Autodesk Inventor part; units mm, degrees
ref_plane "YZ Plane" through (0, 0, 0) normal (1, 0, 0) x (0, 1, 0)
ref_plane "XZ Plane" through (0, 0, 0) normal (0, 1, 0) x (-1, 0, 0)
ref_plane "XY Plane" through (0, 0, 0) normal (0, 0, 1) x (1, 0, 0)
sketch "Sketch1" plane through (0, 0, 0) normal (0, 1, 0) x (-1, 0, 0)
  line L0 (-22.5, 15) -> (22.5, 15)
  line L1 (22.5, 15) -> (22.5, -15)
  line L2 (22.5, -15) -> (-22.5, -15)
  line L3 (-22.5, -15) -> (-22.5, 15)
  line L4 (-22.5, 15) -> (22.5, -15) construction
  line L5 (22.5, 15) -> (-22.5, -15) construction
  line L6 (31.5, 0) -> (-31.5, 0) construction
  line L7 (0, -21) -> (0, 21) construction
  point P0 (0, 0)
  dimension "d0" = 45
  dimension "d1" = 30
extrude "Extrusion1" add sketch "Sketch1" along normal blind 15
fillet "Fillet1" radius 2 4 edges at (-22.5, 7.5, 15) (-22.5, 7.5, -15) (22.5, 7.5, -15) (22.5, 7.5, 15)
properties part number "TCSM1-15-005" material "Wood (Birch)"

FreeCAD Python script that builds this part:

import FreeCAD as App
import Part
import Sketcher

V = App.Vector


def edges_at(feature, points):
    """Names of the edges that pass closest to the given points."""
    edges = feature.Shape.Edges
    near = lambda p: min(range(len(edges)), key=lambda i: edges[i].distToShape(Part.Vertex(*p))[0])
    return sorted({f"Edge{near(p) + 1}" for p in points})


def add_polygon(sketch, points):
    """Adds a closed chain of lines whose ends are joined by coincident constraints."""
    first, n = sketch.GeometryCount, len(points)
    for a, b in zip(points, points[1:] + points[:1]):
        sketch.addGeometry(Part.LineSegment(App.Vector(*a, 0), App.Vector(*b, 0)), False)
    for i in range(n):
        sketch.addConstraint(Sketcher.Constraint("Coincident", first + i, 2, first + (i + 1) % n, 1))

doc = App.newDocument("Part")
body = doc.addObject("PartDesign::Body", "Body")

sketch1 = body.newObject("Sketcher::SketchObject", "Sketch")
sketch1.AttachmentSupport = (doc.getObject("XZ_Plane"), [""])
sketch1.MapMode = "FlatFace"
add_polygon(sketch1, [(-22, 15), (22, 15), (22, -15), (-22, -15)])
sketch1.addConstraint([
    Sketcher.Constraint("Horizontal", 0),
    Sketcher.Constraint("Vertical", 1),
    Sketcher.Constraint("Horizontal", 2),
    Sketcher.Constraint("Vertical", 3),
    Sketcher.Constraint("Symmetric", 0, 2, 2, 2, -1, 1),
    Sketcher.Constraint("DistanceX", 0, 1, 0, 2, 45.0),
    Sketcher.Constraint("DistanceY", 1, 2, 1, 1, 30.0),
])
pad1 = body.newObject("PartDesign::Pad", "Pad")
pad1.Profile = sketch1
pad1.Length = 15
pad1.Reversed = True
doc.recompute()

fillet = body.newObject("PartDesign::Fillet", "Fillet")
fillet.Base = (pad1, edges_at(pad1, [
    (-22.5, 7.5, 15),
    (-22.5, 7.5, -15),
    (22.5, 7.5, -15),
    (22.5, 7.5, 15),
]))
fillet.Radius = 2

doc.recompute()
